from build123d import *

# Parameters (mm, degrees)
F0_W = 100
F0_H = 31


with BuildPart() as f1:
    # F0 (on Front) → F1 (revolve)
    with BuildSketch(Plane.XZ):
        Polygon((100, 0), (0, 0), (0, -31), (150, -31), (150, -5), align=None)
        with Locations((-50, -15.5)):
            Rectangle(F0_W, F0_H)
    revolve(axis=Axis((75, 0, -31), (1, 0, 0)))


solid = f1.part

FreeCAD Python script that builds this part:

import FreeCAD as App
import Part
import Sketcher
from FreeCAD import Vector

doc = App.newDocument("Part")
body = doc.addObject("PartDesign::Body", "Body")

# Sketch on XZ plane
sketch1 = body.newObject("Sketcher::SketchObject", "Sketch")
sketch1.AttachmentSupport = (doc.getObject("XZ_Plane"), [""])
sketch1.MapMode = "FlatFace"
sketch1.addGeometry([
    Part.LineSegment(Vector(100, 0, 0), Vector(-100, 0, 0)),  # 0
    Part.LineSegment(Vector(-100, 0, 0), Vector(-100, -31, 0)),  # 1
    Part.LineSegment(Vector(-100, -31, 0), Vector(150, -31, 0)),  # 2
    Part.LineSegment(Vector(150, -31, 0), Vector(150, -5, 0)),  # 3
    Part.LineSegment(Vector(150, -5, 0), Vector(100, 0, 0)),  # 4
], False)
sketch1.addGeometry(Part.LineSegment(Vector(-100, -31, 0), Vector(150, -31, 0)), True)  # axis
sketch1.addConstraint([
    Sketcher.Constraint("Coincident", 0, 2, 1, 1),
    Sketcher.Constraint("Coincident", 1, 2, 2, 1),
    Sketcher.Constraint("Coincident", 2, 2, 3, 1),
    Sketcher.Constraint("Coincident", 3, 2, 4, 1),
    Sketcher.Constraint("Coincident", 4, 2, 0, 1),
    Sketcher.Constraint("Horizontal", 0),
    Sketcher.Constraint("Vertical", 1),
    Sketcher.Constraint("Horizontal", 2),
    Sketcher.Constraint("Vertical", 3),
    Sketcher.Constraint("Horizontal", 5),
    Sketcher.Constraint("Coincident", 5, 1, 1, 2),
    Sketcher.Constraint("Symmetric", 0, 2, 4, 2, -1, 1),
    Sketcher.Constraint("Vertical", 3, 2, 5, 2),
    Sketcher.Constraint("DistanceX", 0, 2, 0, 1, 200.0),
    Sketcher.Constraint("DistanceX", 2, 1, 2, 2, 250.0),
    Sketcher.Constraint("DistanceY", 1, 2, 1, 1, 31.0),
    Sketcher.Constraint("DistanceY", 3, 1, 3, 2, 26.0),
])
revolution = body.newObject("PartDesign::Revolution", "Revolution")
revolution.Profile = sketch1
revolution.ReferenceAxis = (sketch1, ["Axis0"])
revolution.Angle = 360

doc.recompute()
